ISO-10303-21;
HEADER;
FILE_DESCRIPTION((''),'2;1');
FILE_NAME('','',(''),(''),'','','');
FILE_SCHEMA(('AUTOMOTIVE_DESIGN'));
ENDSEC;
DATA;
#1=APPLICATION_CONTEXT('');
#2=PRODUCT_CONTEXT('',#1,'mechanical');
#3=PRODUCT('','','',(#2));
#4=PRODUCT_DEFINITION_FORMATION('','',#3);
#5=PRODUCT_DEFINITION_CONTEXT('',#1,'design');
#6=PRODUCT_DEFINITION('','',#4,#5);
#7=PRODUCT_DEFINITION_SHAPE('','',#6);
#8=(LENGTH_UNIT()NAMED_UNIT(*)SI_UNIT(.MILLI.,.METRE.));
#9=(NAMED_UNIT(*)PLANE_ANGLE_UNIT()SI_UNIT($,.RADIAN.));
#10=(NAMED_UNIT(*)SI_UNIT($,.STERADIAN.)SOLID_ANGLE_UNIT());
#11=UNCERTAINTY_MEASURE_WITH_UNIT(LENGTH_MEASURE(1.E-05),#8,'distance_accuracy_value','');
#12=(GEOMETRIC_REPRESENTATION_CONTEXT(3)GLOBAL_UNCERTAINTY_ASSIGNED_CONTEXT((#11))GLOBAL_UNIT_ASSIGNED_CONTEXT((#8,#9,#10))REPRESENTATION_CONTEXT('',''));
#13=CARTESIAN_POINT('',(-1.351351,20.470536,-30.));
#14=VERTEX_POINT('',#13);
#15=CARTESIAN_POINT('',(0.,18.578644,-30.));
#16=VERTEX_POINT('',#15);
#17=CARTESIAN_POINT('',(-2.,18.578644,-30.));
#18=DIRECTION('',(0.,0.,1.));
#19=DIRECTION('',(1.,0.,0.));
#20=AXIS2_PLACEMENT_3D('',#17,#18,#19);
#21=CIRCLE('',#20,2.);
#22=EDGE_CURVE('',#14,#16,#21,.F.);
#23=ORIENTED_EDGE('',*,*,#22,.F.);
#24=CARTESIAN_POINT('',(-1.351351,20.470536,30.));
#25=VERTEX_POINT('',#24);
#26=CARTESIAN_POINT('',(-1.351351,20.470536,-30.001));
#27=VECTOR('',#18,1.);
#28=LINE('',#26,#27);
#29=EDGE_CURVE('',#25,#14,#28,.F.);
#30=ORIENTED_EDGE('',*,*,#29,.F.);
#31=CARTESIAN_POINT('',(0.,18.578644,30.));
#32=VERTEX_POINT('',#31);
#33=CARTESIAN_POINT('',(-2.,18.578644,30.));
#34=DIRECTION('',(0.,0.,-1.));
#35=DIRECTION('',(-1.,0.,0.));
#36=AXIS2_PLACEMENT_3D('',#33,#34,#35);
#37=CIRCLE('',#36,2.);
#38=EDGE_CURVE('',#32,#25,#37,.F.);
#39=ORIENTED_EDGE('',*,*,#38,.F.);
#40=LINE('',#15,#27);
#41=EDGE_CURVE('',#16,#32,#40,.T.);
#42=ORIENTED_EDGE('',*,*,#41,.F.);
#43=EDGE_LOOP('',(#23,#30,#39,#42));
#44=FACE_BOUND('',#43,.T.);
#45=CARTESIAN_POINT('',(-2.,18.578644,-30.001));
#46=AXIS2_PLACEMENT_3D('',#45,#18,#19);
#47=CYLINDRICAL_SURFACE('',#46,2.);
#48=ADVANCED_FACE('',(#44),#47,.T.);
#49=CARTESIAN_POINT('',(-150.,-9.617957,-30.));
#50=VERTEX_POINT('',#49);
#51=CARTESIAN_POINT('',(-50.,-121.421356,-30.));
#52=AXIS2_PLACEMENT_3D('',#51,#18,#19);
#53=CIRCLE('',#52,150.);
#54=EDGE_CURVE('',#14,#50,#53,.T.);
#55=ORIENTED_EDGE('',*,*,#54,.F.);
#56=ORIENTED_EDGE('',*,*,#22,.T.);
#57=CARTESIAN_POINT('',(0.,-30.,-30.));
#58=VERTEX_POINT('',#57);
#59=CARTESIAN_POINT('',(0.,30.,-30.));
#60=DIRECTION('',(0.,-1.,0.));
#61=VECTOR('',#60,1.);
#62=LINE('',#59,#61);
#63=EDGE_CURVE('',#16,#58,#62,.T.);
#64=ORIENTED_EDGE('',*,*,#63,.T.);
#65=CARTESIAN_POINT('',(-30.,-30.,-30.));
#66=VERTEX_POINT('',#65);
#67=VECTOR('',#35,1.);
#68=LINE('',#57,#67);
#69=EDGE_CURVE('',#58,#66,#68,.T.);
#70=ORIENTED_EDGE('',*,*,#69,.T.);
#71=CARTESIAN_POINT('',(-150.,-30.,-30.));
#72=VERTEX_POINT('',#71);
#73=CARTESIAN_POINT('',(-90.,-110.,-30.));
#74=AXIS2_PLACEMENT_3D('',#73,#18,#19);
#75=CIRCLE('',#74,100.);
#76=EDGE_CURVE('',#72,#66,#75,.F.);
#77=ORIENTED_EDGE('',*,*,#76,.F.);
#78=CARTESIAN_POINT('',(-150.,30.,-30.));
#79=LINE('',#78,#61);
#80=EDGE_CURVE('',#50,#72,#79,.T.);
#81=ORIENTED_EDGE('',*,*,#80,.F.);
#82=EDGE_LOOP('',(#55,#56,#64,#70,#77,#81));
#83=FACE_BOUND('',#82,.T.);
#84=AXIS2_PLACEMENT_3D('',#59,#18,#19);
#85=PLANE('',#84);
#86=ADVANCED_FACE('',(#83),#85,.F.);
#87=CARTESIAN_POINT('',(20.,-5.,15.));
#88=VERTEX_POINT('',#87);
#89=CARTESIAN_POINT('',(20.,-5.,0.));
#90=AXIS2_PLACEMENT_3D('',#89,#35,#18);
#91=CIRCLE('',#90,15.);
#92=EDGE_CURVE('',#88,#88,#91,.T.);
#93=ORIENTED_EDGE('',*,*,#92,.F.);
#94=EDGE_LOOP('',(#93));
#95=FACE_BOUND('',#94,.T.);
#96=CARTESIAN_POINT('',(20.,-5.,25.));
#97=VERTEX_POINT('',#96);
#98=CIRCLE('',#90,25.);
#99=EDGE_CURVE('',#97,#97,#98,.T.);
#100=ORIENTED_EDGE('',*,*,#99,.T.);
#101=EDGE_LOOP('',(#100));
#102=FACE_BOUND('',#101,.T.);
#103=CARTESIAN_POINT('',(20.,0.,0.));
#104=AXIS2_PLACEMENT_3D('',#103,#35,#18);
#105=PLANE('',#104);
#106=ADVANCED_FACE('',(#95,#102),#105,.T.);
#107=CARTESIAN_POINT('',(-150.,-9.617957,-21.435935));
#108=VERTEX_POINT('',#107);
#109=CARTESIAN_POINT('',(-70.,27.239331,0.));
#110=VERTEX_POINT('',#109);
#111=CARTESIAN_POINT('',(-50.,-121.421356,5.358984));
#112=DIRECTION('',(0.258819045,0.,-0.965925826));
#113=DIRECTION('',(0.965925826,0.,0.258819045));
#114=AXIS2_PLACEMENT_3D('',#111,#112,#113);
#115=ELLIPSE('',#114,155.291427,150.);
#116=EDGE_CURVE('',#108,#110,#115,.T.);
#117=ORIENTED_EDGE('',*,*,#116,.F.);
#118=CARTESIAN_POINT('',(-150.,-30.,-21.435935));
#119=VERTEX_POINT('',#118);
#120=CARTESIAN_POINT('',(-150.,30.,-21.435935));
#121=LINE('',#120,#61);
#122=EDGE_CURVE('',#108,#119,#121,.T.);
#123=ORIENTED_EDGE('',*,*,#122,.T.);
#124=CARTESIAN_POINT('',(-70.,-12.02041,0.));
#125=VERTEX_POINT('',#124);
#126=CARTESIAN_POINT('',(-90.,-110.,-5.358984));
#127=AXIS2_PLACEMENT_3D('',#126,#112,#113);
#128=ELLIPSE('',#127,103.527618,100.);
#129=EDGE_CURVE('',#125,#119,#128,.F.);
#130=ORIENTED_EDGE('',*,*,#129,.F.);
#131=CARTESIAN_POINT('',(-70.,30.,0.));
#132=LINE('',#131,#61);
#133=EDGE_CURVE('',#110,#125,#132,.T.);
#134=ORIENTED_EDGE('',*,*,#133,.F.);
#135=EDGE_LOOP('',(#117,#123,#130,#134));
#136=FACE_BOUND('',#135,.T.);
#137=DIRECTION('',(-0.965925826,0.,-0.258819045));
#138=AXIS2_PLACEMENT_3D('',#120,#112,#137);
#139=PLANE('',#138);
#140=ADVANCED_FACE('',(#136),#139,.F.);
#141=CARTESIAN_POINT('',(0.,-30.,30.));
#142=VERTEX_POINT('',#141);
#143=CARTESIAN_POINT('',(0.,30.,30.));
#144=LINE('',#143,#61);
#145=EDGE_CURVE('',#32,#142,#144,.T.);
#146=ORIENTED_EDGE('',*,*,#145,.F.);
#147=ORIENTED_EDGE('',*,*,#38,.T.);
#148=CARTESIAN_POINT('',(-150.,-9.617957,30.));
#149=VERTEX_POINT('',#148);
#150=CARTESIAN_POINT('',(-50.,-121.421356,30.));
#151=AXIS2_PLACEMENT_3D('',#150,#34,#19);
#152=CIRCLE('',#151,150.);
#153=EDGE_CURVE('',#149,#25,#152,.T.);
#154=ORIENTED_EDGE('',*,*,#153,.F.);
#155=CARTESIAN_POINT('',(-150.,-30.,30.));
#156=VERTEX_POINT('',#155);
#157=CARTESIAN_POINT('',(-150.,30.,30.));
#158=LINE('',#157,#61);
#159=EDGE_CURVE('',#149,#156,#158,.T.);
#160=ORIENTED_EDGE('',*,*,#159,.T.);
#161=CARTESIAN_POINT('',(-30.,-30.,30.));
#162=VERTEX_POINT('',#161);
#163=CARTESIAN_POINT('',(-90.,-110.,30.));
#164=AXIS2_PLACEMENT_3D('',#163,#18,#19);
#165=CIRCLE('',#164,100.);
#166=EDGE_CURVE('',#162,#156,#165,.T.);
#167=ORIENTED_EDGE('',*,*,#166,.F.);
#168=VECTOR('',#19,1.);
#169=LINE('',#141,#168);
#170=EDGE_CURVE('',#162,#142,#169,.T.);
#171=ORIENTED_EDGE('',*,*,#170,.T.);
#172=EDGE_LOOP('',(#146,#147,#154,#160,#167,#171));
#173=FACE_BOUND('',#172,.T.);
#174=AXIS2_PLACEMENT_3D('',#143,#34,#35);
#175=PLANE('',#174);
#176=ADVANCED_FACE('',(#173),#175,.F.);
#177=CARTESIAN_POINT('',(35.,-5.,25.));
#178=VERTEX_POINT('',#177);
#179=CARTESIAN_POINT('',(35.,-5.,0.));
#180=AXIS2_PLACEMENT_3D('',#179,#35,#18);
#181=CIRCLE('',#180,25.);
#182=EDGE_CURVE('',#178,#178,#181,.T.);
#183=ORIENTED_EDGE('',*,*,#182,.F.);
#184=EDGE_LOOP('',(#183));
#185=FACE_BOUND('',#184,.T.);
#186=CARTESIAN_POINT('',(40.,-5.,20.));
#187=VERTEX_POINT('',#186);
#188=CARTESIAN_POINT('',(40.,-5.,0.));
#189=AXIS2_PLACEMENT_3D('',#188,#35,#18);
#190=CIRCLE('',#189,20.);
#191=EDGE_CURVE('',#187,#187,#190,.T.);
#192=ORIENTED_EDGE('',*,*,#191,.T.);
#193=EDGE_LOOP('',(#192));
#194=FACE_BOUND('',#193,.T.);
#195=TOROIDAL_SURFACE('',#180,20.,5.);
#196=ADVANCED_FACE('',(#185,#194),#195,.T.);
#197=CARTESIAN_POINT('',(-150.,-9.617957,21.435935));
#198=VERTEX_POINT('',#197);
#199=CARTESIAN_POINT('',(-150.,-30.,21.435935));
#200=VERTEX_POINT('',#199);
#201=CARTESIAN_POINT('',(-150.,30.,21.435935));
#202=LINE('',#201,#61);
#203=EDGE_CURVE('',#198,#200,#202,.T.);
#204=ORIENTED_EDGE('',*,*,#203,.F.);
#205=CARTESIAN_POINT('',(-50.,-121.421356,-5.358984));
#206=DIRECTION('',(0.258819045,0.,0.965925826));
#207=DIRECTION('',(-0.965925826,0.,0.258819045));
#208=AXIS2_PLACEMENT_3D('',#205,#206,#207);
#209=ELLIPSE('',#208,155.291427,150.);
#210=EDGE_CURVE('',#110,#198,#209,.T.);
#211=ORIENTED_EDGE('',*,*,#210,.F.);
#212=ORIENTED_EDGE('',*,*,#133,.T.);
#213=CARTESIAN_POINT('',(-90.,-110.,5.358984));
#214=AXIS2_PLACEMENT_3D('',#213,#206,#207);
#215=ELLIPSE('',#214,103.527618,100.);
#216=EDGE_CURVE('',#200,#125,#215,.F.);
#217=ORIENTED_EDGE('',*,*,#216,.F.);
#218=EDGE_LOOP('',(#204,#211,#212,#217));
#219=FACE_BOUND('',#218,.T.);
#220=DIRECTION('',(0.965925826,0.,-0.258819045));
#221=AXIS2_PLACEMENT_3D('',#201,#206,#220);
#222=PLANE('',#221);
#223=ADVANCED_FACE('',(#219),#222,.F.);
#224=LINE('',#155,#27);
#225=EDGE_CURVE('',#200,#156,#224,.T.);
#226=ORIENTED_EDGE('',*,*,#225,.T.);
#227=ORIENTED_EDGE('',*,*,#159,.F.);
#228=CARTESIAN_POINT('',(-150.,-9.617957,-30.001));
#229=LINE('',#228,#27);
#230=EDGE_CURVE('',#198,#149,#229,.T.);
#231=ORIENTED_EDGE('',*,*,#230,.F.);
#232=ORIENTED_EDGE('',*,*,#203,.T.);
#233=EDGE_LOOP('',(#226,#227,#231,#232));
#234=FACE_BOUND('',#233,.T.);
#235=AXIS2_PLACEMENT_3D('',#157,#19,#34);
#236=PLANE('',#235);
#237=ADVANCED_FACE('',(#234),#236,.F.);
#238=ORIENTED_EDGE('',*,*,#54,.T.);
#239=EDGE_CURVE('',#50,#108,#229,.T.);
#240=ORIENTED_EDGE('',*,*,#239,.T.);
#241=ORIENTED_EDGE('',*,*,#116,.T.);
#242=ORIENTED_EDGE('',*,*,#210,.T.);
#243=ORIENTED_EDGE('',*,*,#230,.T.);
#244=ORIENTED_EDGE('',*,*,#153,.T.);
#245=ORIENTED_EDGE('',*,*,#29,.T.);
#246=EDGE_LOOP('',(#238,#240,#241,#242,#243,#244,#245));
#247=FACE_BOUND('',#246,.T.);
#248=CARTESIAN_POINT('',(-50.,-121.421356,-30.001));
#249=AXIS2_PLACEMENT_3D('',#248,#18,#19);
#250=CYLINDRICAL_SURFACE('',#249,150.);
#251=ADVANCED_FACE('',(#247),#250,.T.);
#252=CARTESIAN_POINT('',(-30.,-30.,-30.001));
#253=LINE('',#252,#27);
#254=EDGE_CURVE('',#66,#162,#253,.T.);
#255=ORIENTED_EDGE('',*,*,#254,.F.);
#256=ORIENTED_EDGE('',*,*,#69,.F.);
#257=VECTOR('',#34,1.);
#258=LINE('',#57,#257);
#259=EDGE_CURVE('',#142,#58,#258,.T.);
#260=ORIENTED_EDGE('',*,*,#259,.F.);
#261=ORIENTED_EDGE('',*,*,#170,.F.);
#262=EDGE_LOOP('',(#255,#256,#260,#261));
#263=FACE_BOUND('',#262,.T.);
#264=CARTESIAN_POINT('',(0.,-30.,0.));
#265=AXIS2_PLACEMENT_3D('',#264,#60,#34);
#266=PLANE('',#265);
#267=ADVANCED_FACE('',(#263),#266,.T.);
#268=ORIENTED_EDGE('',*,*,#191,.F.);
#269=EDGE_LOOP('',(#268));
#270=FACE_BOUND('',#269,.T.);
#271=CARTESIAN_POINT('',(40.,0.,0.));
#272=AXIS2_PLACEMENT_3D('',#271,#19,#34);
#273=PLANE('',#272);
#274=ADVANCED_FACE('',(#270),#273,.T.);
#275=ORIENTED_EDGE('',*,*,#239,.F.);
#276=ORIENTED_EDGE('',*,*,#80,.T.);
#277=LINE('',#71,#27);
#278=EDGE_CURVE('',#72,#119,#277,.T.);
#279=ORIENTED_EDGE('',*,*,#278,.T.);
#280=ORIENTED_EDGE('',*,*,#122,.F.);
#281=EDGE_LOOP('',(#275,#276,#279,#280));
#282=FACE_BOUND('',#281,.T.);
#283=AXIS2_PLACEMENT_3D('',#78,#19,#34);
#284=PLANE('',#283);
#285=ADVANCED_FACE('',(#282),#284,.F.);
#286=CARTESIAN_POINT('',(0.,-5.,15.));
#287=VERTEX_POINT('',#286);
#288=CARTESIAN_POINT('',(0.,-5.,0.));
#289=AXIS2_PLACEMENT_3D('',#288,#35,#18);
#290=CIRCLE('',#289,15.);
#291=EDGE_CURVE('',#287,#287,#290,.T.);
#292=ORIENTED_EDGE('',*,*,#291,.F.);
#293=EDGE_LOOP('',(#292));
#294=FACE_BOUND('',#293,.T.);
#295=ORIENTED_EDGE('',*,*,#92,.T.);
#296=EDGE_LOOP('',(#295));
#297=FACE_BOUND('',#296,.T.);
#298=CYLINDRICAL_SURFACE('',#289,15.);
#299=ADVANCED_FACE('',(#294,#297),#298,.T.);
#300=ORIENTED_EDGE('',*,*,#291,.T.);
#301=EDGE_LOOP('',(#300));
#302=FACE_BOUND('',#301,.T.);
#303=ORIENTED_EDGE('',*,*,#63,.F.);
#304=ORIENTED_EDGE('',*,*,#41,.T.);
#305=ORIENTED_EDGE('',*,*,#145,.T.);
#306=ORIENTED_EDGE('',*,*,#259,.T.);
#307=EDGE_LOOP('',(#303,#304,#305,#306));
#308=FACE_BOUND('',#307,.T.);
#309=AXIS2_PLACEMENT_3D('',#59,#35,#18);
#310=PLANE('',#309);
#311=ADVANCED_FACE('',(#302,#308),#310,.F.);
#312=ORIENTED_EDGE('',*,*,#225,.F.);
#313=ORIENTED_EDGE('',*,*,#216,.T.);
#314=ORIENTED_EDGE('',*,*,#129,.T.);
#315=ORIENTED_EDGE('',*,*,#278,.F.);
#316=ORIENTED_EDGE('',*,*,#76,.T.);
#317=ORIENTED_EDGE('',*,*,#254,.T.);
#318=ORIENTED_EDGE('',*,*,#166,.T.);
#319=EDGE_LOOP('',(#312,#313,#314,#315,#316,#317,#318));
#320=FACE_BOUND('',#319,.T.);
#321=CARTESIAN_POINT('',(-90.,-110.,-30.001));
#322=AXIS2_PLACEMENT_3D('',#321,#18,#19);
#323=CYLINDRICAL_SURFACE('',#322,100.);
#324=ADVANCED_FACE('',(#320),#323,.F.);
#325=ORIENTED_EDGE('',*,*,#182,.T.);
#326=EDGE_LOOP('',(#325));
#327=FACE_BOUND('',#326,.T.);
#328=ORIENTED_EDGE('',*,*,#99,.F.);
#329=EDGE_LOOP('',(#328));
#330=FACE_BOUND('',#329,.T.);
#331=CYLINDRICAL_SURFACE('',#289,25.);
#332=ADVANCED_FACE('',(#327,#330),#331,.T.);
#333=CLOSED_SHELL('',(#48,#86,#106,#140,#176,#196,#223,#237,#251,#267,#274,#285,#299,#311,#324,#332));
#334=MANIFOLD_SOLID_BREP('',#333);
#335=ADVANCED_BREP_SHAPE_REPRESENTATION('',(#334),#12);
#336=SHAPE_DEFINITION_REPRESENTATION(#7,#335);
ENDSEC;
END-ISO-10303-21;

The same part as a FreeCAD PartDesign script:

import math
import FreeCAD as App
import Part
import Sketcher

V = App.Vector
Q = App.Units.Quantity


def edges_at(feature, points):
    """Names of the edges that pass closest to the given points."""
    edges = feature.Shape.Edges
    near = lambda p: min(range(len(edges)), key=lambda i: edges[i].distToShape(Part.Vertex(*p))[0])
    return sorted({f"Edge{near(p) + 1}" for p in points})

doc = App.newDocument("Part")
body = doc.addObject("PartDesign::Body", "Body")

sketch1 = body.newObject("Sketcher::SketchObject", "Sketch")
sketch1.AttachmentSupport = (doc.getObject("XZ_Plane"), [""])
sketch1.MapMode = "FlatFace"
sketch1.addGeometry([
    Part.LineSegment(V(0, 30, 0), V(0, -30, 0)),
    Part.LineSegment(V(0, -30, 0), V(-150, -30, 0)),
    Part.LineSegment(V(-150, -30, 0), V(-150, -21, 0)),
    Part.LineSegment(V(-150, -21, 0), V(-70, 0, 0)),
    Part.LineSegment(V(-70, 0, 0), V(-150, 21, 0)),
    Part.LineSegment(V(-150, 21, 0), V(-150, 30, 0)),
    Part.LineSegment(V(-150, 30, 0), V(0, 30, 0)),
], False)
sketch1.addConstraint([
    Sketcher.Constraint("Coincident", 0, 2, 1, 1),
    Sketcher.Constraint("Coincident", 1, 2, 2, 1),
    Sketcher.Constraint("Coincident", 2, 2, 3, 1),
    Sketcher.Constraint("Coincident", 3, 2, 4, 1),
    Sketcher.Constraint("Coincident", 4, 2, 5, 1),
    Sketcher.Constraint("Coincident", 5, 2, 6, 1),
    Sketcher.Constraint("Coincident", 6, 2, 0, 1),
    Sketcher.Constraint("Vertical", 0),
    Sketcher.Constraint("Horizontal", 1),
    Sketcher.Constraint("Vertical", 2),
    Sketcher.Constraint("Vertical", 5),
    Sketcher.Constraint("Horizontal", 6),
    Sketcher.Constraint("Symmetric", 0, 2, 6, 2, -1, 1),
    Sketcher.Constraint("Symmetric", 2, 2, 4, 2, -1),
    Sketcher.Constraint("PointOnObject", 3, 2, -1),
    Sketcher.Constraint("DistanceX", 1, 2, 1, 1, Q("150 mm")),
    Sketcher.Constraint("DistanceY", 0, 2, 0, 1, Q("60 mm")),
    Sketcher.Constraint("Angle", 3, Q("15 deg")),
    Sketcher.Constraint("DistanceX", 3, 2, -1, 1, Q("70 mm")),
])
pad1 = body.newObject("PartDesign::Pad", "Pad")
pad1.Profile = sketch1
pad1.Length = 60
pad1.Midplane = True

sketch2 = body.newObject("Sketcher::SketchObject", "Sketch001")
sketch2.AttachmentSupport = (doc.getObject("XY_Plane"), [""])
sketch2.MapMode = "FlatFace"
sketch2.AttachmentOffset = App.Placement(V(0, 0, 30), App.Rotation())
sketch2.addGeometry([
    Part.LineSegment(V(-150, -30, 0), V(-30, -30, 0)),
    Part.ArcOfCircle(Part.Circle(V(-90, -110, 0), V(0, 0, 1), 100), math.radians(53), math.radians(127)),
], False)
sketch2.addConstraint([
    Sketcher.Constraint("Coincident", 0, 1, 1, 2),
    Sketcher.Constraint("Coincident", 1, 1, 0, 2),
    Sketcher.Constraint("Horizontal", 0),
    Sketcher.Constraint("Radius", 1, Q("100 mm")),
    Sketcher.Constraint("DistanceX", 0, 1, 0, 2, Q("120 mm")),
    Sketcher.Constraint("DistanceX", 1, 3, -1, 1, Q("90 mm")),
    Sketcher.Constraint("DistanceY", 1, 3, -1, 1, Q("110 mm")),
])
pocket1 = body.newObject("PartDesign::Pocket", "Pocket")
pocket1.Profile = sketch2
pocket1.Length = 60

sketch3 = body.newObject("Sketcher::SketchObject", "Sketch002")
sketch3.AttachmentSupport = (doc.getObject("XY_Plane"), [""])
sketch3.MapMode = "FlatFace"
sketch3.addGeometry([
    Part.LineSegment(V(20, -30, 0), V(35, -30, 0)),
    Part.ArcOfCircle(Part.Circle(V(35, -25, 0), V(0, 0, 1), 5), math.radians(-90), math.radians(0)),
    Part.LineSegment(V(40, -25, 0), V(40, -5, 0)),
    Part.LineSegment(V(40, -5, 0), V(0, -5, 0)),
    Part.LineSegment(V(0, -5, 0), V(0, -20, 0)),
    Part.LineSegment(V(0, -20, 0), V(20, -20, 0)),
    Part.LineSegment(V(20, -20, 0), V(20, -30, 0)),
], False)
sketch3.addGeometry(Part.LineSegment(V(0, -5, 0), V(40, -5, 0)), True)
sketch3.addConstraint([
    Sketcher.Constraint("Tangent", 0, 2, 1, 1),
    Sketcher.Constraint("Tangent", 1, 2, 2, 1),
    Sketcher.Constraint("Coincident", 2, 2, 3, 1),
    Sketcher.Constraint("Coincident", 3, 2, 4, 1),
    Sketcher.Constraint("Coincident", 4, 2, 5, 1),
    Sketcher.Constraint("Coincident", 5, 2, 6, 1),
    Sketcher.Constraint("Coincident", 6, 2, 0, 1),
    Sketcher.Constraint("Horizontal", 0),
    Sketcher.Constraint("Vertical", 2),
    Sketcher.Constraint("Horizontal", 3),
    Sketcher.Constraint("Vertical", 4),
    Sketcher.Constraint("Horizontal", 5),
    Sketcher.Constraint("Vertical", 6),
    Sketcher.Constraint("Horizontal", 7),
    Sketcher.Constraint("Coincident", 7, 1, 3, 2),
    Sketcher.Constraint("PointOnObject", 3, 2, -2),
    Sketcher.Constraint("Vertical", 1, 2, 7, 2),
    Sketcher.Constraint("Equal", 5, 2),
    Sketcher.Constraint("Equal", 0, 4),
    Sketcher.Constraint("Radius", 1, Q("5 mm")),
    Sketcher.Constraint("DistanceX", 0, 1, 0, 2, Q("15 mm")),
    Sketcher.Constraint("DistanceX", 3, 2, 3, 1, Q("40 mm")),
    Sketcher.Constraint("DistanceY", 1, 3, -1, 1, Q("25 mm")),
])
revolution = body.newObject("PartDesign::Revolution", "Revolution")
revolution.Profile = sketch3
revolution.ReferenceAxis = (sketch3, ["Axis0"])
revolution.Angle = 360

sketch4 = body.newObject("Sketcher::SketchObject", "Sketch003")
sketch4.AttachmentSupport = (doc.getObject("XY_Plane"), [""])
sketch4.MapMode = "FlatFace"
sketch4.AttachmentOffset = App.Placement(V(0, 0, 30), App.Rotation())
sketch4.addGeometry([
    Part.LineSegment(V(-150, 30, 0), V(-150, -10, 0)),
    Part.ArcOfCircle(Part.Circle(V(-50, -121, 0), V(0, 0, 1), 150), math.radians(71), math.radians(132)),
    Part.LineSegment(V(0, 20, 0), V(0, 30, 0)),
    Part.LineSegment(V(0, 30, 0), V(-150, 30, 0)),
], False)
sketch4.addConstraint([
    Sketcher.Constraint("Coincident", 0, 2, 1, 2),
    Sketcher.Constraint("Coincident", 1, 1, 2, 1),
    Sketcher.Constraint("Coincident", 2, 2, 3, 1),
    Sketcher.Constraint("Coincident", 3, 2, 0, 1),
    Sketcher.Constraint("Vertical", 0),
    Sketcher.Constraint("Vertical", 2),
    Sketcher.Constraint("Horizontal", 3),
    Sketcher.Constraint("PointOnObject", 1, 1, -2),
    Sketcher.Constraint("Radius", 1, Q("150 mm")),
    Sketcher.Constraint("DistanceX", 3, 2, 3, 1, Q("150 mm")),
    Sketcher.Constraint("DistanceY", 2, 1, 2, 2, Q("10 mm")),
    Sketcher.Constraint("DistanceX", 1, 3, -1, 1, Q("50 mm")),
    Sketcher.Constraint("DistanceY", -1, 1, 1, 1, Q("20 mm")),
])
pocket2 = body.newObject("PartDesign::Pocket", "Pocket001")
pocket2.Profile = sketch4
pocket2.Length = 60
doc.recompute()

fillet = body.newObject("PartDesign::Fillet", "Fillet")
fillet.Base = (pocket2, edges_at(pocket2, [(0, 20, 0)]))
fillet.Radius = 2

doc.recompute()
